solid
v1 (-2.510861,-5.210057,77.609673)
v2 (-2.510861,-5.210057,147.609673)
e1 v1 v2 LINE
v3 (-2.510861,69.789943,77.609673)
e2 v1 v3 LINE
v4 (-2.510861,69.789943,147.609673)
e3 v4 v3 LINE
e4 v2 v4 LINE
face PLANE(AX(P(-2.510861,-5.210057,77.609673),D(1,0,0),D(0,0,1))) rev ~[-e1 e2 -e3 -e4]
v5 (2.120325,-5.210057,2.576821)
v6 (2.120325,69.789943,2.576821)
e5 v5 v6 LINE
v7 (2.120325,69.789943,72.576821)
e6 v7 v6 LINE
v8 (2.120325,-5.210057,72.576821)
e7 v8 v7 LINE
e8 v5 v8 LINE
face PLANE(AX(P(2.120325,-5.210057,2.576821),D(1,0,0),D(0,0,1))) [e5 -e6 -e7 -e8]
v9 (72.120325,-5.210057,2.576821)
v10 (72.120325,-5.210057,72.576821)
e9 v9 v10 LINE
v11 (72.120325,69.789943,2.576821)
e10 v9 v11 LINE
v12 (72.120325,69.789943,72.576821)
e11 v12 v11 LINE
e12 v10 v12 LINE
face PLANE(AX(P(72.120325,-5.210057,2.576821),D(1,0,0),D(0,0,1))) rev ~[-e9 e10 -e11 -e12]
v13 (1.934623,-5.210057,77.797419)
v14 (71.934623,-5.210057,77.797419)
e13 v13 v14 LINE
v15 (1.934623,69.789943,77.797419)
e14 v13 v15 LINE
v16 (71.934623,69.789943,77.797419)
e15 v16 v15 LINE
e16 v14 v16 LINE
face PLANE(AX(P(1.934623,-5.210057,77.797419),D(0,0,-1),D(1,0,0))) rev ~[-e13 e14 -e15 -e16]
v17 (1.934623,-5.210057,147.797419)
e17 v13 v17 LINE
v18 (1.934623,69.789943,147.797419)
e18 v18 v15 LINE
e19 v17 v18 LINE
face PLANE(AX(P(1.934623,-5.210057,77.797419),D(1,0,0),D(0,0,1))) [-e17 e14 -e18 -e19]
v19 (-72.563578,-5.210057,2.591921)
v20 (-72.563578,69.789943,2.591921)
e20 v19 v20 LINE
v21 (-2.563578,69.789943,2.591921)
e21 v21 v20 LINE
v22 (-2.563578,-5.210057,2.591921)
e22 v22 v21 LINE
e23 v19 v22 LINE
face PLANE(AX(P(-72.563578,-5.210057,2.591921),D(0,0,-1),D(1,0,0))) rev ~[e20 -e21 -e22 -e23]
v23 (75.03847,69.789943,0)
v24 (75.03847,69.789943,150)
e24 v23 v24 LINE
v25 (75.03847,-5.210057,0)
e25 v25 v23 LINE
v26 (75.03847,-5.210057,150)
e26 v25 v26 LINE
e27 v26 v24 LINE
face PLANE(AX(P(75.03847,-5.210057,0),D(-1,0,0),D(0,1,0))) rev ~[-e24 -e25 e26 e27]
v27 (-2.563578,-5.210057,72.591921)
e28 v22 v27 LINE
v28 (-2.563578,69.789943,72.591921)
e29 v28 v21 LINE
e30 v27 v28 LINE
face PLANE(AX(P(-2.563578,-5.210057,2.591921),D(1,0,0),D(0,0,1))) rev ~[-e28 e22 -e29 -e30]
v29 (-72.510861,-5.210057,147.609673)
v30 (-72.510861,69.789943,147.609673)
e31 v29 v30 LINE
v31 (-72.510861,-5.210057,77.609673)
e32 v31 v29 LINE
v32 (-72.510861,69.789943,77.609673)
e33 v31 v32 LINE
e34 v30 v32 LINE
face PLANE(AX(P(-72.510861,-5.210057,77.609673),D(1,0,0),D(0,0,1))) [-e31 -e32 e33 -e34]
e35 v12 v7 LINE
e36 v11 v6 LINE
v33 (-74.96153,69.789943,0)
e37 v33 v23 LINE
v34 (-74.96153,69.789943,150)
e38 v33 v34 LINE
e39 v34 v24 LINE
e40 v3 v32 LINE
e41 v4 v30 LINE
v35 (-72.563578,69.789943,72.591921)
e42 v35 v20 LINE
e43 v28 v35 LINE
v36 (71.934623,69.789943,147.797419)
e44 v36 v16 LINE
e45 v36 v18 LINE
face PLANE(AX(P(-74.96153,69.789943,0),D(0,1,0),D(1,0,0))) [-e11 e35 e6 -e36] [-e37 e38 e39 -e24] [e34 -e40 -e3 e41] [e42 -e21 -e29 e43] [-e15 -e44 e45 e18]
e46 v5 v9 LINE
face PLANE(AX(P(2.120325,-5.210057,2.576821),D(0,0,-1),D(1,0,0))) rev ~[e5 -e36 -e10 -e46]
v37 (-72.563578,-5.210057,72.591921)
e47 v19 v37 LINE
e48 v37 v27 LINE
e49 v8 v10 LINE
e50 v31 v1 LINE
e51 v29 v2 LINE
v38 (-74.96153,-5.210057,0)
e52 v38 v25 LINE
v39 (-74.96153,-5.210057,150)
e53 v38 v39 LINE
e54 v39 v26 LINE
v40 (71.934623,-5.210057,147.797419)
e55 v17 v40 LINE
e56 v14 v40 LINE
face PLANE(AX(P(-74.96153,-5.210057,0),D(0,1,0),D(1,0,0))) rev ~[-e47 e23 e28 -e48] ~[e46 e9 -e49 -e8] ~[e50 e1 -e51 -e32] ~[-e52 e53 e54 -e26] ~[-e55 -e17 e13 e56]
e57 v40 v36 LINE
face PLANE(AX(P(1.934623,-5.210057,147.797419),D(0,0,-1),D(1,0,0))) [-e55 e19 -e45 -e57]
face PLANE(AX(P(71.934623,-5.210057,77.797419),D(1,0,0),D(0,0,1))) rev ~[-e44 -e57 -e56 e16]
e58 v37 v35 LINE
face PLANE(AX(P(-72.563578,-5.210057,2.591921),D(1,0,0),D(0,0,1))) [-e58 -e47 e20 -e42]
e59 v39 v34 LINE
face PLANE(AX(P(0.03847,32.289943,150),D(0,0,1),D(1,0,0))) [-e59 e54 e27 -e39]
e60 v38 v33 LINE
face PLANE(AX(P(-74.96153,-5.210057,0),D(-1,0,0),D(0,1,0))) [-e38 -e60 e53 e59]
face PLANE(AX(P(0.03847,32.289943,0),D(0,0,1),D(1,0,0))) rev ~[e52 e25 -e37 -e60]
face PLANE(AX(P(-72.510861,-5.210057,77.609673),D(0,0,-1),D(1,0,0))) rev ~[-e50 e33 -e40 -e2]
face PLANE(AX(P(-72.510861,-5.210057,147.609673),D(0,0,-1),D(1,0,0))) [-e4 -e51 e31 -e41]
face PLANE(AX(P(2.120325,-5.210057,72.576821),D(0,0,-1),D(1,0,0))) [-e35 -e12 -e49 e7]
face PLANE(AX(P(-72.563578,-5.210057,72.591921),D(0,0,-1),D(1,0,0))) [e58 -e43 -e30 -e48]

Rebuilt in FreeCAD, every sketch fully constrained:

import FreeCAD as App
import Part
import Sketcher

doc = App.newDocument("Part")
body = doc.addObject("PartDesign::Body", "Body")

sketch1 = body.newObject("Sketcher::SketchObject", "Sketch")
sketch1.AttachmentSupport = (doc.getObject("XY_Plane"), [""])
sketch1.MapMode = "FlatFace"
sketch1.addGeometry([
    Part.LineSegment(App.Vector(-75, 70, 0), App.Vector(-75, -5, 0)),
    Part.LineSegment(App.Vector(-75, -5, 0), App.Vector(75, -5, 0)),
    Part.LineSegment(App.Vector(75, -5, 0), App.Vector(75, 70, 0)),
    Part.LineSegment(App.Vector(75, 70, 0), App.Vector(-75, 70, 0)),
], False)
sketch1.addConstraint([
    Sketcher.Constraint("Coincident", 0, 2, 1, 1),
    Sketcher.Constraint("Coincident", 1, 2, 2, 1),
    Sketcher.Constraint("Coincident", 2, 2, 3, 1),
    Sketcher.Constraint("Coincident", 3, 2, 0, 1),
    Sketcher.Constraint("Vertical", 0),
    Sketcher.Constraint("Horizontal", 1),
    Sketcher.Constraint("Vertical", 2),
    Sketcher.Constraint("Horizontal", 3),
    Sketcher.Constraint("DistanceX", 1, 1, 1, 2, 150.0),
    Sketcher.Constraint("DistanceY", 0, 2, 0, 1, 75.0),
    Sketcher.Constraint("DistanceX", 0, 2, -1, 1, 74.96153),
    Sketcher.Constraint("DistanceY", 0, 2, -1, 1, 5.210057),
])
pad1 = body.newObject("PartDesign::Pad", "Pad")
pad1.Profile = sketch1
pad1.Length = 150

sketch2 = body.newObject("Sketcher::SketchObject", "Sketch001")
sketch2.AttachmentSupport = (doc.getObject("XZ_Plane"), [""])
sketch2.MapMode = "FlatFace"
sketch2.AttachmentOffset = App.Placement(App.Vector(0, 0, 5.210057), App.Rotation())
sketch2.addGeometry([
    Part.LineSegment(App.Vector(-73, 148, 0), App.Vector(-73, 78, 0)),
    Part.LineSegment(App.Vector(-73, 78, 0), App.Vector(-3, 78, 0)),
    Part.LineSegment(App.Vector(-3, 78, 0), App.Vector(-3, 148, 0)),
    Part.LineSegment(App.Vector(-3, 148, 0), App.Vector(-73, 148, 0)),
    Part.LineSegment(App.Vector(2, 148, 0), App.Vector(2, 78, 0)),
    Part.LineSegment(App.Vector(2, 78, 0), App.Vector(72, 78, 0)),
    Part.LineSegment(App.Vector(72, 78, 0), App.Vector(72, 148, 0)),
    Part.LineSegment(App.Vector(72, 148, 0), App.Vector(2, 148, 0)),
    Part.LineSegment(App.Vector(-73, 73, 0), App.Vector(-73, 3, 0)),
    Part.LineSegment(App.Vector(-73, 3, 0), App.Vector(-3, 3, 0)),
    Part.LineSegment(App.Vector(-3, 3, 0), App.Vector(-3, 73, 0)),
    Part.LineSegment(App.Vector(-3, 73, 0), App.Vector(-73, 73, 0)),
    Part.LineSegment(App.Vector(2, 73, 0), App.Vector(2, 3, 0)),
    Part.LineSegment(App.Vector(2, 3, 0), App.Vector(72, 3, 0)),
    Part.LineSegment(App.Vector(72, 3, 0), App.Vector(72, 73, 0)),
    Part.LineSegment(App.Vector(72, 73, 0), App.Vector(2, 73, 0)),
], False)
sketch2.addConstraint([
    Sketcher.Constraint("Coincident", 0, 2, 1, 1),
    Sketcher.Constraint("Coincident", 1, 2, 2, 1),
    Sketcher.Constraint("Coincident", 2, 2, 3, 1),
    Sketcher.Constraint("Coincident", 3, 2, 0, 1),
    Sketcher.Constraint("Coincident", 4, 2, 5, 1),
    Sketcher.Constraint("Coincident", 5, 2, 6, 1),
    Sketcher.Constraint("Coincident", 6, 2, 7, 1),
    Sketcher.Constraint("Coincident", 7, 2, 4, 1),
    Sketcher.Constraint("Coincident", 8, 2, 9, 1),
    Sketcher.Constraint("Coincident", 9, 2, 10, 1),
    Sketcher.Constraint("Coincident", 10, 2, 11, 1),
    Sketcher.Constraint("Coincident", 11, 2, 8, 1),
    Sketcher.Constraint("Coincident", 12, 2, 13, 1),
    Sketcher.Constraint("Coincident", 13, 2, 14, 1),
    Sketcher.Constraint("Coincident", 14, 2, 15, 1),
    Sketcher.Constraint("Coincident", 15, 2, 12, 1),
    Sketcher.Constraint("Vertical", 0),
    Sketcher.Constraint("Horizontal", 1),
    Sketcher.Constraint("Vertical", 2),
    Sketcher.Constraint("Horizontal", 3),
    Sketcher.Constraint("Vertical", 4),
    Sketcher.Constraint("Horizontal", 5),
    Sketcher.Constraint("Vertical", 6),
    Sketcher.Constraint("Horizontal", 7),
    Sketcher.Constraint("Vertical", 8),
    Sketcher.Constraint("Horizontal", 9),
    Sketcher.Constraint("Vertical", 10),
    Sketcher.Constraint("Horizontal", 11),
    Sketcher.Constraint("Vertical", 12),
    Sketcher.Constraint("Horizontal", 13),
    Sketcher.Constraint("Vertical", 14),
    Sketcher.Constraint("Horizontal", 15),
    Sketcher.Constraint("Equal", 3, 5),
    Sketcher.Constraint("Equal", 7, 9),
    Sketcher.Constraint("Equal", 11, 13),
    Sketcher.Constraint("Equal", 15, 0),
    Sketcher.Constraint("Equal", 2, 4),
    Sketcher.Constraint("Equal", 6, 8),
    Sketcher.Constraint("Equal", 10, 12),
    Sketcher.Constraint("DistanceX", 1, 1, 1, 2, 70.0),
    Sketcher.Constraint("DistanceX", 8, 2, 4, 2, 74.498201),
    Sketcher.Constraint("DistanceY", 8, 2, 4, 2, 75.205498),
    Sketcher.Constraint("DistanceY", 12, 2, 9, 2, 0.0151),
    Sketcher.Constraint("DistanceX", 4, 2, 12, 2, 0.185702),
    Sketcher.Constraint("DistanceX", 0, 2, -1, 1, 72.510861),
    Sketcher.Constraint("DistanceY", -1, 1, 4, 2, 77.797419),
    Sketcher.Constraint("DistanceX", 8, 2, -1, 1, 72.563578),
    Sketcher.Constraint("DistanceY", 8, 2, 0, 2, 75.017752),
])
pocket1 = body.newObject("PartDesign::Pocket", "Pocket")
pocket1.Profile = sketch2
pocket1.Length = 128.9

doc.recompute()
